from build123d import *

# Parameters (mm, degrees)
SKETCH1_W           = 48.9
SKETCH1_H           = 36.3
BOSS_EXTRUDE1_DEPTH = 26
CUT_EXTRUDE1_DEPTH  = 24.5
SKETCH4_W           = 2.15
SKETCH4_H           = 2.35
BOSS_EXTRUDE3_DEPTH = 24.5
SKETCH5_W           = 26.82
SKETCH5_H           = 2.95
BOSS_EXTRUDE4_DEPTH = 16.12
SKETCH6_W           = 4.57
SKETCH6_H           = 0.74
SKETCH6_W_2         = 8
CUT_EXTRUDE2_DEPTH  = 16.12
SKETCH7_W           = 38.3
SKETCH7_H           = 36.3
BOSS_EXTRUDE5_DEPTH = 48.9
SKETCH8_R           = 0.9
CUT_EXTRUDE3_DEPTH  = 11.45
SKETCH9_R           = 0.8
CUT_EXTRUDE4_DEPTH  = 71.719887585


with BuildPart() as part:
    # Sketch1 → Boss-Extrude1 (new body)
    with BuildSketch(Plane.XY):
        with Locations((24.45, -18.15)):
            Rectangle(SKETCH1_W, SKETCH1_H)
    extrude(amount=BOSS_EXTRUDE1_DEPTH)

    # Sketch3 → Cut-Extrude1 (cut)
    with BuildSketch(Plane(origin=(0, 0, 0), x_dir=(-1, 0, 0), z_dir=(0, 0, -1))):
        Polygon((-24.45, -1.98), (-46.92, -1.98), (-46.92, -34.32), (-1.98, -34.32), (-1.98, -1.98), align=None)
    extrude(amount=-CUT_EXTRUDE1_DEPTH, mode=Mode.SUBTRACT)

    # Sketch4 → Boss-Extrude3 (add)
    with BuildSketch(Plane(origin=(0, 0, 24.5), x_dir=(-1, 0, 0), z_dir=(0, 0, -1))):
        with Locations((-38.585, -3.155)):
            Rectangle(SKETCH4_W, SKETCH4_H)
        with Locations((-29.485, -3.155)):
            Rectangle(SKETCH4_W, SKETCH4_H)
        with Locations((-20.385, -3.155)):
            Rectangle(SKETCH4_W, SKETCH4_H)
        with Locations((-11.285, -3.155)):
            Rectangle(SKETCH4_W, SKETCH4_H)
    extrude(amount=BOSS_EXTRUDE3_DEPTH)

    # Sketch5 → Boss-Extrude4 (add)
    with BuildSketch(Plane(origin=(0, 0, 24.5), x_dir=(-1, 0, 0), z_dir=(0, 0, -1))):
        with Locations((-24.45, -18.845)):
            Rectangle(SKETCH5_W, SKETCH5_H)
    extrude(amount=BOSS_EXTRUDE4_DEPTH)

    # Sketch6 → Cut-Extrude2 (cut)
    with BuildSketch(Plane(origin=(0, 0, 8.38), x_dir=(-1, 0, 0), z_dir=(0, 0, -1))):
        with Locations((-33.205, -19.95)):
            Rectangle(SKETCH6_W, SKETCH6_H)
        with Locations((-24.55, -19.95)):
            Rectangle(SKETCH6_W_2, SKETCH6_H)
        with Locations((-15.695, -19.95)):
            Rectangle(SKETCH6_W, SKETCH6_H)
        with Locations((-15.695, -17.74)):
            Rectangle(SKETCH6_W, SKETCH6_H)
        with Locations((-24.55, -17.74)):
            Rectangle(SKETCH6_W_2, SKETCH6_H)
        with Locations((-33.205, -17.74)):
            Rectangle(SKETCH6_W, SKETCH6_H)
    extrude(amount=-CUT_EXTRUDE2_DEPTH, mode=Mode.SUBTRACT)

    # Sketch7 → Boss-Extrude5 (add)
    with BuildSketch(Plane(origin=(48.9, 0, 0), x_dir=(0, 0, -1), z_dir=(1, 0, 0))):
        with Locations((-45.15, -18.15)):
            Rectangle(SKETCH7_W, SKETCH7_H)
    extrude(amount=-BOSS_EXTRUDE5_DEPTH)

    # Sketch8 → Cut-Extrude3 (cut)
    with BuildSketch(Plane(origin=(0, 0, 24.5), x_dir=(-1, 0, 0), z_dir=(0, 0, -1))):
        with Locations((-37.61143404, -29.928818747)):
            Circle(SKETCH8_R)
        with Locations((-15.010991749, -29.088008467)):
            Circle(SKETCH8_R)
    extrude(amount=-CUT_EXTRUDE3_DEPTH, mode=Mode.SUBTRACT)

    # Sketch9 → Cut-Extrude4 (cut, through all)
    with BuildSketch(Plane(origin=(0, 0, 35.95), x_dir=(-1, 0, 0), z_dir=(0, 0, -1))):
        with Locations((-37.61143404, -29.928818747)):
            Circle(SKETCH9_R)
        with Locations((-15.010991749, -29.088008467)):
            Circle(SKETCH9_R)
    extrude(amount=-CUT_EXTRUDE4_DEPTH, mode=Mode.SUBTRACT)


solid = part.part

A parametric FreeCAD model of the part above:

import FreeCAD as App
import Part
import Sketcher
from FreeCAD import Vector

doc = App.newDocument("Part")
body = doc.addObject("PartDesign::Body", "Body")

sketch1 = doc.addObject("Sketcher::SketchObject", "Sketch")
body.addObject(sketch1)
sketch1.AttachmentSupport = (doc.XY_Plane, [""])
sketch1.MapMode = "FlatFace"
sketch1.addGeometry(Part.LineSegment(Vector(0, 0, 0), Vector(0, -36, 0)), False)
sketch1.addGeometry(Part.LineSegment(Vector(0, -36, 0), Vector(49, -36, 0)), False)
sketch1.addGeometry(Part.LineSegment(Vector(49, -36, 0), Vector(49, 0, 0)), False)
sketch1.addGeometry(Part.LineSegment(Vector(49, 0, 0), Vector(0, 0, 0)), False)
sketch1.addConstraint(Sketcher.Constraint("Coincident", 0, 2, 1, 1))
sketch1.addConstraint(Sketcher.Constraint("Coincident", 1, 2, 2, 1))
sketch1.addConstraint(Sketcher.Constraint("Coincident", 2, 2, 3, 1))
sketch1.addConstraint(Sketcher.Constraint("Coincident", 3, 2, 0, 1))
sketch1.addConstraint(Sketcher.Constraint("Vertical", 0))
sketch1.addConstraint(Sketcher.Constraint("Horizontal", 1))
sketch1.addConstraint(Sketcher.Constraint("Vertical", 2))
sketch1.addConstraint(Sketcher.Constraint("Horizontal", 3))
sketch1.addConstraint(Sketcher.Constraint("Coincident", 3, 2, -1, 1))
sketch1.addConstraint(Sketcher.Constraint("DistanceX", 1, 1, 1, 2, 48.9))
sketch1.addConstraint(Sketcher.Constraint("DistanceY", 0, 2, 0, 1, 36.3))
pad1 = doc.addObject("PartDesign::Pad", "Pad")
body.addObject(pad1)
pad1.Profile = sketch1
pad1.Length = 26

sketch2 = doc.addObject("Sketcher::SketchObject", "Sketch001")
body.addObject(sketch2)
sketch2.AttachmentSupport = (doc.XY_Plane, [""])
sketch2.MapMode = "FlatFace"
sketch2.addGeometry(Part.LineSegment(Vector(47, -2, 0), Vector(47, -34, 0)), False)
sketch2.addGeometry(Part.LineSegment(Vector(47, -34, 0), Vector(2, -34, 0)), False)
sketch2.addGeometry(Part.LineSegment(Vector(2, -34, 0), Vector(2, -2, 0)), False)
sketch2.addGeometry(Part.LineSegment(Vector(2, -2, 0), Vector(47, -2, 0)), False)
sketch2.addConstraint(Sketcher.Constraint("Coincident", 0, 2, 1, 1))
sketch2.addConstraint(Sketcher.Constraint("Coincident", 1, 2, 2, 1))
sketch2.addConstraint(Sketcher.Constraint("Coincident", 2, 2, 3, 1))
sketch2.addConstraint(Sketcher.Constraint("Coincident", 3, 2, 0, 1))
sketch2.addConstraint(Sketcher.Constraint("Vertical", 0))
sketch2.addConstraint(Sketcher.Constraint("Horizontal", 1))
sketch2.addConstraint(Sketcher.Constraint("Vertical", 2))
sketch2.addConstraint(Sketcher.Constraint("Horizontal", 3))
sketch2.addConstraint(Sketcher.Constraint("DistanceX", 1, 2, 1, 1, 44.94))
sketch2.addConstraint(Sketcher.Constraint("DistanceY", 0, 2, 0, 1, 32.34))
sketch2.addConstraint(Sketcher.Constraint("DistanceX", -1, 1, 0, 2, 46.92))
sketch2.addConstraint(Sketcher.Constraint("DistanceY", 0, 2, -1, 1, 34.32))
pocket1 = doc.addObject("PartDesign::Pocket", "Pocket")
body.addObject(pocket1)
pocket1.Profile = sketch2
pocket1.Length = 24.5
pocket1.Reversed = True

sketch3 = doc.addObject("Sketcher::SketchObject", "Sketch002")
body.addObject(sketch3)
sketch3.AttachmentSupport = (doc.XY_Plane, [""])
sketch3.MapMode = "FlatFace"
sketch3.AttachmentOffset = App.Placement(Vector(0, 0, 24.5), App.Rotation())
sketch3.addGeometry(Part.LineSegment(Vector(39.7, -2, 0), Vector(39.7, -4.3, 0)), False)
sketch3.addGeometry(Part.LineSegment(Vector(39.7, -4.3, 0), Vector(37.5, -4.3, 0)), False)
sketch3.addGeometry(Part.LineSegment(Vector(37.5, -4.3, 0), Vector(37.5, -2, 0)), False)
sketch3.addGeometry(Part.LineSegment(Vector(37.5, -2, 0), Vector(39.7, -2, 0)), False)
sketch3.addGeometry(Part.LineSegment(Vector(30.6, -2, 0), Vector(30.6, -4.3, 0)), False)
sketch3.addGeometry(Part.LineSegment(Vector(30.6, -4.3, 0), Vector(28.4, -4.3, 0)), False)
sketch3.addGeometry(Part.LineSegment(Vector(28.4, -4.3, 0), Vector(28.4, -2, 0)), False)
sketch3.addGeometry(Part.LineSegment(Vector(28.4, -2, 0), Vector(30.6, -2, 0)), False)
sketch3.addGeometry(Part.LineSegment(Vector(21.5, -2, 0), Vector(21.5, -4.3, 0)), False)
sketch3.addGeometry(Part.LineSegment(Vector(21.5, -4.3, 0), Vector(19.3, -4.3, 0)), False)
sketch3.addGeometry(Part.LineSegment(Vector(19.3, -4.3, 0), Vector(19.3, -2, 0)), False)
sketch3.addGeometry(Part.LineSegment(Vector(19.3, -2, 0), Vector(21.5, -2, 0)), False)
sketch3.addGeometry(Part.LineSegment(Vector(12.4, -2, 0), Vector(12.4, -4.3, 0)), False)
sketch3.addGeometry(Part.LineSegment(Vector(12.4, -4.3, 0), Vector(10.2, -4.3, 0)), False)
sketch3.addGeometry(Part.LineSegment(Vector(10.2, -4.3, 0), Vector(10.2, -2, 0)), False)
sketch3.addGeometry(Part.LineSegment(Vector(10.2, -2, 0), Vector(12.4, -2, 0)), False)
sketch3.addConstraint(Sketcher.Constraint("Coincident", 0, 2, 1, 1))
sketch3.addConstraint(Sketcher.Constraint("Coincident", 1, 2, 2, 1))
sketch3.addConstraint(Sketcher.Constraint("Coincident", 2, 2, 3, 1))
sketch3.addConstraint(Sketcher.Constraint("Coincident", 3, 2, 0, 1))
sketch3.addConstraint(Sketcher.Constraint("Coincident", 4, 2, 5, 1))
sketch3.addConstraint(Sketcher.Constraint("Coincident", 5, 2, 6, 1))
sketch3.addConstraint(Sketcher.Constraint("Coincident", 6, 2, 7, 1))
sketch3.addConstraint(Sketcher.Constraint("Coincident", 7, 2, 4, 1))
sketch3.addConstraint(Sketcher.Constraint("Coincident", 8, 2, 9, 1))
sketch3.addConstraint(Sketcher.Constraint("Coincident", 9, 2, 10, 1))
sketch3.addConstraint(Sketcher.Constraint("Coincident", 10, 2, 11, 1))
sketch3.addConstraint(Sketcher.Constraint("Coincident", 11, 2, 8, 1))
sketch3.addConstraint(Sketcher.Constraint("Coincident", 12, 2, 13, 1))
sketch3.addConstraint(Sketcher.Constraint("Coincident", 13, 2, 14, 1))
sketch3.addConstraint(Sketcher.Constraint("Coincident", 14, 2, 15, 1))
sketch3.addConstraint(Sketcher.Constraint("Coincident", 15, 2, 12, 1))
sketch3.addConstraint(Sketcher.Constraint("Vertical", 0))
sketch3.addConstraint(Sketcher.Constraint("Horizontal", 1))
sketch3.addConstraint(Sketcher.Constraint("Vertical", 2))
sketch3.addConstraint(Sketcher.Constraint("Horizontal", 3))
sketch3.addConstraint(Sketcher.Constraint("Vertical", 4))
sketch3.addConstraint(Sketcher.Constraint("Horizontal", 5))
sketch3.addConstraint(Sketcher.Constraint("Vertical", 6))
sketch3.addConstraint(Sketcher.Constraint("Horizontal", 7))
sketch3.addConstraint(Sketcher.Constraint("Vertical", 8))
sketch3.addConstraint(Sketcher.Constraint("Horizontal", 9))
sketch3.addConstraint(Sketcher.Constraint("Vertical", 10))
sketch3.addConstraint(Sketcher.Constraint("Horizontal", 11))
sketch3.addConstraint(Sketcher.Constraint("Vertical", 12))
sketch3.addConstraint(Sketcher.Constraint("Horizontal", 13))
sketch3.addConstraint(Sketcher.Constraint("Vertical", 14))
sketch3.addConstraint(Sketcher.Constraint("Horizontal", 15))
sketch3.addConstraint(Sketcher.Constraint("Horizontal", 1, 2, 4, 2))
sketch3.addConstraint(Sketcher.Constraint("Horizontal", 3, 2, 6, 2))
sketch3.addConstraint(Sketcher.Constraint("Horizontal", 5, 2, 8, 2))
sketch3.addConstraint(Sketcher.Constraint("Horizontal", 7, 2, 10, 2))
sketch3.addConstraint(Sketcher.Constraint("Horizontal", 9, 2, 12, 2))
sketch3.addConstraint(Sketcher.Constraint("Horizontal", 11, 2, 14, 2))
sketch3.addConstraint(Sketcher.Constraint("Equal", 3, 5))
sketch3.addConstraint(Sketcher.Constraint("Equal", 7, 9))
sketch3.addConstraint(Sketcher.Constraint("Equal", 11, 13))
sketch3.addConstraint(Sketcher.Constraint("DistanceX", 1, 2, 1, 1, 2.15))
sketch3.addConstraint(Sketcher.Constraint("DistanceY", 0, 2, 0, 1, 2.35))
sketch3.addConstraint(Sketcher.Constraint("DistanceX", 4, 2, 0, 2, 9.1))
sketch3.addConstraint(Sketcher.Constraint("DistanceX", 8, 2, 4, 2, 9.1))
sketch3.addConstraint(Sketcher.Constraint("DistanceX", 12, 2, 8, 2, 9.1))
sketch3.addConstraint(Sketcher.Constraint("DistanceX", -1, 1, 0, 2, 39.66))
sketch3.addConstraint(Sketcher.Constraint("DistanceY", 0, 2, -1, 1, 4.33))
pad2 = doc.addObject("PartDesign::Pad", "Pad001")
body.addObject(pad2)
pad2.Profile = sketch3
pad2.Length = 24.5
pad2.Reversed = True

sketch4 = doc.addObject("Sketcher::SketchObject", "Sketch003")
body.addObject(sketch4)
sketch4.AttachmentSupport = (doc.XY_Plane, [""])
sketch4.MapMode = "FlatFace"
sketch4.AttachmentOffset = App.Placement(Vector(0, 0, 24.5), App.Rotation())
sketch4.addGeometry(Part.LineSegment(Vector(37.9, -17.4, 0), Vector(37.9, -20.3, 0)), False)
sketch4.addGeometry(Part.LineSegment(Vector(37.9, -20.3, 0), Vector(11, -20.3, 0)), False)
sketch4.addGeometry(Part.LineSegment(Vector(11, -20.3, 0), Vector(11, -17.4, 0)), False)
sketch4.addGeometry(Part.LineSegment(Vector(11, -17.4, 0), Vector(37.9, -17.4, 0)), False)
sketch4.addConstraint(Sketcher.Constraint("Coincident", 0, 2, 1, 1))
sketch4.addConstraint(Sketcher.Constraint("Coincident", 1, 2, 2, 1))
sketch4.addConstraint(Sketcher.Constraint("Coincident", 2, 2, 3, 1))
sketch4.addConstraint(Sketcher.Constraint("Coincident", 3, 2, 0, 1))
sketch4.addConstraint(Sketcher.Constraint("Vertical", 0))
sketch4.addConstraint(Sketcher.Constraint("Horizontal", 1))
sketch4.addConstraint(Sketcher.Constraint("Vertical", 2))
sketch4.addConstraint(Sketcher.Constraint("Horizontal", 3))
sketch4.addConstraint(Sketcher.Constraint("DistanceX", 1, 2, 1, 1, 26.82))
sketch4.addConstraint(Sketcher.Constraint("DistanceY", 0, 2, 0, 1, 2.95))
sketch4.addConstraint(Sketcher.Constraint("DistanceX", -1, 1, 0, 2, 37.86))
sketch4.addConstraint(Sketcher.Constraint("DistanceY", 0, 2, -1, 1, 20.32))
pad3 = doc.addObject("PartDesign::Pad", "Pad002")
body.addObject(pad3)
pad3.Profile = sketch4
pad3.Length = 16.12
pad3.Reversed = True

sketch5 = doc.addObject("Sketcher::SketchObject", "Sketch004")
body.addObject(sketch5)
sketch5.AttachmentSupport = (doc.XY_Plane, [""])
sketch5.MapMode = "FlatFace"
sketch5.AttachmentOffset = App.Placement(Vector(0, 0, 8.38), App.Rotation())
sketch5.addGeometry(Part.LineSegment(Vector(35.5, -19.6, 0), Vector(35.5, -20.3, 0)), False)
sketch5.addGeometry(Part.LineSegment(Vector(35.5, -20.3, 0), Vector(30.9, -20.3, 0)), False)
sketch5.addGeometry(Part.LineSegment(Vector(30.9, -20.3, 0), Vector(30.9, -19.6, 0)), False)
sketch5.addGeometry(Part.LineSegment(Vector(30.9, -19.6, 0), Vector(35.5, -19.6, 0)), False)
sketch5.addGeometry(Part.LineSegment(Vector(28.6, -19.6, 0), Vector(28.6, -20.3, 0)), False)
sketch5.addGeometry(Part.LineSegment(Vector(28.6, -20.3, 0), Vector(20.6, -20.3, 0)), False)
sketch5.addGeometry(Part.LineSegment(Vector(20.6, -20.3, 0), Vector(20.6, -19.6, 0)), False)
sketch5.addGeometry(Part.LineSegment(Vector(20.6, -19.6, 0), Vector(28.6, -19.6, 0)), False)
sketch5.addGeometry(Part.LineSegment(Vector(18, -19.6, 0), Vector(18, -20.3, 0)), False)
sketch5.addGeometry(Part.LineSegment(Vector(18, -20.3, 0), Vector(13.4, -20.3, 0)), False)
sketch5.addGeometry(Part.LineSegment(Vector(13.4, -20.3, 0), Vector(13.4, -19.6, 0)), False)
sketch5.addGeometry(Part.LineSegment(Vector(13.4, -19.6, 0), Vector(18, -19.6, 0)), False)
sketch5.addGeometry(Part.LineSegment(Vector(18, -17.4, 0), Vector(18, -18.1, 0)), False)
sketch5.addGeometry(Part.LineSegment(Vector(18, -18.1, 0), Vector(13.4, -18.1, 0)), False)
sketch5.addGeometry(Part.LineSegment(Vector(13.4, -18.1, 0), Vector(13.4, -17.4, 0)), False)
sketch5.addGeometry(Part.LineSegment(Vector(13.4, -17.4, 0), Vector(18, -17.4, 0)), False)
sketch5.addGeometry(Part.LineSegment(Vector(28.6, -17.4, 0), Vector(28.6, -18.1, 0)), False)
sketch5.addGeometry(Part.LineSegment(Vector(28.6, -18.1, 0), Vector(20.6, -18.1, 0)), False)
sketch5.addGeometry(Part.LineSegment(Vector(20.6, -18.1, 0), Vector(20.6, -17.4, 0)), False)
sketch5.addGeometry(Part.LineSegment(Vector(20.6, -17.4, 0), Vector(28.6, -17.4, 0)), False)
sketch5.addGeometry(Part.LineSegment(Vector(35.5, -17.4, 0), Vector(35.5, -18.1, 0)), False)
sketch5.addGeometry(Part.LineSegment(Vector(35.5, -18.1, 0), Vector(30.9, -18.1, 0)), False)
sketch5.addGeometry(Part.LineSegment(Vector(30.9, -18.1, 0), Vector(30.9, -17.4, 0)), False)
sketch5.addGeometry(Part.LineSegment(Vector(30.9, -17.4, 0), Vector(35.5, -17.4, 0)), False)
sketch5.addConstraint(Sketcher.Constraint("Coincident", 0, 2, 1, 1))
sketch5.addConstraint(Sketcher.Constraint("Coincident", 1, 2, 2, 1))
sketch5.addConstraint(Sketcher.Constraint("Coincident", 2, 2, 3, 1))
sketch5.addConstraint(Sketcher.Constraint("Coincident", 3, 2, 0, 1))
sketch5.addConstraint(Sketcher.Constraint("Coincident", 4, 2, 5, 1))
sketch5.addConstraint(Sketcher.Constraint("Coincident", 5, 2, 6, 1))
sketch5.addConstraint(Sketcher.Constraint("Coincident", 6, 2, 7, 1))
sketch5.addConstraint(Sketcher.Constraint("Coincident", 7, 2, 4, 1))
sketch5.addConstraint(Sketcher.Constraint("Coincident", 8, 2, 9, 1))
sketch5.addConstraint(Sketcher.Constraint("Coincident", 9, 2, 10, 1))
sketch5.addConstraint(Sketcher.Constraint("Coincident", 10, 2, 11, 1))
sketch5.addConstraint(Sketcher.Constraint("Coincident", 11, 2, 8, 1))
sketch5.addConstraint(Sketcher.Constraint("Coincident", 12, 2, 13, 1))
sketch5.addConstraint(Sketcher.Constraint("Coincident", 13, 2, 14, 1))
sketch5.addConstraint(Sketcher.Constraint("Coincident", 14, 2, 15, 1))
sketch5.addConstraint(Sketcher.Constraint("Coincident", 15, 2, 12, 1))
sketch5.addConstraint(Sketcher.Constraint("Coincident", 16, 2, 17, 1))
sketch5.addConstraint(Sketcher.Constraint("Coincident", 17, 2, 18, 1))
sketch5.addConstraint(Sketcher.Constraint("Coincident", 18, 2, 19, 1))
sketch5.addConstraint(Sketcher.Constraint("Coincident", 19, 2, 16, 1))
sketch5.addConstraint(Sketcher.Constraint("Coincident", 20, 2, 21, 1))
sketch5.addConstraint(Sketcher.Constraint("Coincident", 21, 2, 22, 1))
sketch5.addConstraint(Sketcher.Constraint("Coincident", 22, 2, 23, 1))
sketch5.addConstraint(Sketcher.Constraint("Coincident", 23, 2, 20, 1))
sketch5.addConstraint(Sketcher.Constraint("Vertical", 0))
sketch5.addConstraint(Sketcher.Constraint("Horizontal", 1))
sketch5.addConstraint(Sketcher.Constraint("Vertical", 2))
sketch5.addConstraint(Sketcher.Constraint("Horizontal", 3))
sketch5.addConstraint(Sketcher.Constraint("Vertical", 4))
sketch5.addConstraint(Sketcher.Constraint("Horizontal", 5))
sketch5.addConstraint(Sketcher.Constraint("Vertical", 6))
sketch5.addConstraint(Sketcher.Constraint("Horizontal", 7))
sketch5.addConstraint(Sketcher.Constraint("Vertical", 8))
sketch5.addConstraint(Sketcher.Constraint("Horizontal", 9))
sketch5.addConstraint(Sketcher.Constraint("Vertical", 10))
sketch5.addConstraint(Sketcher.Constraint("Horizontal", 11))
sketch5.addConstraint(Sketcher.Constraint("Vertical", 12))
sketch5.addConstraint(Sketcher.Constraint("Horizontal", 13))
sketch5.addConstraint(Sketcher.Constraint("Vertical", 14))
sketch5.addConstraint(Sketcher.Constraint("Horizontal", 15))
sketch5.addConstraint(Sketcher.Constraint("Vertical", 16))
sketch5.addConstraint(Sketcher.Constraint("Horizontal", 17))
sketch5.addConstraint(Sketcher.Constraint("Vertical", 18))
sketch5.addConstraint(Sketcher.Constraint("Horizontal", 19))
sketch5.addConstraint(Sketcher.Constraint("Vertical", 20))
sketch5.addConstraint(Sketcher.Constraint("Horizontal", 21))
sketch5.addConstraint(Sketcher.Constraint("Vertical", 22))
sketch5.addConstraint(Sketcher.Constraint("Horizontal", 23))
sketch5.addConstraint(Sketcher.Constraint("Horizontal", 1, 2, 4, 2))
sketch5.addConstraint(Sketcher.Constraint("Horizontal", 3, 2, 6, 2))
sketch5.addConstraint(Sketcher.Constraint("Horizontal", 5, 2, 8, 2))
sketch5.addConstraint(Sketcher.Constraint("Horizontal", 7, 2, 10, 2))
sketch5.addConstraint(Sketcher.Constraint("Horizontal", 13, 2, 16, 2))
sketch5.addConstraint(Sketcher.Constraint("Horizontal", 15, 2, 18, 2))
sketch5.addConstraint(Sketcher.Constraint("Horizontal", 17, 2, 20, 2))
sketch5.addConstraint(Sketcher.Constraint("Horizontal", 19, 2, 22, 2))
sketch5.addConstraint(Sketcher.Constraint("Vertical", 11, 2, 12, 2))
sketch5.addConstraint(Sketcher.Constraint("Vertical", 10, 2, 13, 2))
sketch5.addConstraint(Sketcher.Constraint("Vertical", 7, 2, 16, 2))
sketch5.addConstraint(Sketcher.Constraint("Vertical", 6, 2, 17, 2))
sketch5.addConstraint(Sketcher.Constraint("Vertical", 3, 2, 20, 2))
sketch5.addConstraint(Sketcher.Constraint("Vertical", 2, 2, 21, 2))
sketch5.addConstraint(Sketcher.Constraint("Equal", 3, 9))
sketch5.addConstraint(Sketcher.Constraint("Equal", 10, 12))
sketch5.addConstraint(Sketcher.Constraint("DistanceX", 5, 2, 5, 1, 8.0))
sketch5.addConstraint(Sketcher.Constraint("DistanceX", 1, 2, 1, 1, 4.57))
sketch5.addConstraint(Sketcher.Constraint("DistanceY", 0, 2, 0, 1, 0.74))
sketch5.addConstraint(Sketcher.Constraint("DistanceX", -1, 1, 0, 2, 35.49))
sketch5.addConstraint(Sketcher.Constraint("DistanceY", 0, 2, -1, 1, 20.32))
sketch5.addConstraint(Sketcher.Constraint("DistanceX", -1, 1, 4, 2, 28.55))
sketch5.addConstraint(Sketcher.Constraint("DistanceX", -1, 1, 8, 2, 17.98))
sketch5.addConstraint(Sketcher.Constraint("DistanceY", 12, 2, -1, 1, 18.11))
pocket2 = doc.addObject("PartDesign::Pocket", "Pocket001")
body.addObject(pocket2)
pocket2.Profile = sketch5
pocket2.Length = 16.12
pocket2.Reversed = True

sketch6 = doc.addObject("Sketcher::SketchObject", "Sketch005")
body.addObject(sketch6)
sketch6.AttachmentSupport = (doc.YZ_Plane, [""])
sketch6.MapMode = "FlatFace"
sketch6.AttachmentOffset = App.Placement(Vector(0, 0, 48.9), App.Rotation())
sketch6.addGeometry(Part.LineSegment(Vector(0, 64, 0), Vector(-36, 64, 0)), False)
sketch6.addGeometry(Part.LineSegment(Vector(-36, 64, 0), Vector(-36, 26, 0)), False)
sketch6.addGeometry(Part.LineSegment(Vector(-36, 26, 0), Vector(0, 26, 0)), False)
sketch6.addGeometry(Part.LineSegment(Vector(0, 26, 0), Vector(0, 64, 0)), False)
sketch6.addConstraint(Sketcher.Constraint("Coincident", 0, 2, 1, 1))
sketch6.addConstraint(Sketcher.Constraint("Coincident", 1, 2, 2, 1))
sketch6.addConstraint(Sketcher.Constraint("Coincident", 2, 2, 3, 1))
sketch6.addConstraint(Sketcher.Constraint("Coincident", 3, 2, 0, 1))
sketch6.addConstraint(Sketcher.Constraint("Horizontal", 0))
sketch6.addConstraint(Sketcher.Constraint("Vertical", 1))
sketch6.addConstraint(Sketcher.Constraint("Horizontal", 2))
sketch6.addConstraint(Sketcher.Constraint("Vertical", 3))
sketch6.addConstraint(Sketcher.Constraint("PointOnObject", 2, 2, -2))
sketch6.addConstraint(Sketcher.Constraint("DistanceX", 0, 2, 0, 1, 36.3))
sketch6.addConstraint(Sketcher.Constraint("DistanceY", 1, 2, 1, 1, 38.3))
sketch6.addConstraint(Sketcher.Constraint("DistanceY", -1, 1, 1, 2, 26.0))
pad4 = doc.addObject("PartDesign::Pad", "Pad003")
body.addObject(pad4)
pad4.Profile = sketch6
pad4.Length = 48.9
pad4.Reversed = True

sketch7 = doc.addObject("Sketcher::SketchObject", "Sketch006")
body.addObject(sketch7)
sketch7.AttachmentSupport = (doc.XY_Plane, [""])
sketch7.MapMode = "FlatFace"
sketch7.AttachmentOffset = App.Placement(Vector(0, 0, 24.5), App.Rotation())
sketch7.addGeometry(Part.Circle(Vector(37.6, -29.9, 0), Vector(0, 0, 1), 0.9), False)
sketch7.addGeometry(Part.Circle(Vector(15, -29.1, 0), Vector(0, 0, 1), 0.9), False)
sketch7.addConstraint(Sketcher.Constraint("Equal", 0, 1))
sketch7.addConstraint(Sketcher.Constraint("Diameter", 0, 1.8))
sketch7.addConstraint(Sketcher.Constraint("DistanceY", 0, 3, -1, 1, 29.928819))
sketch7.addConstraint(Sketcher.Constraint("DistanceX", -1, 1, 1, 3, 15.010992))
sketch7.addConstraint(Sketcher.Constraint("DistanceY", 1, 3, -1, 1, 29.088008))
sketch7.addConstraint(Sketcher.Constraint("DistanceX", -1, 1, 0, 3, 37.611434))
pocket3 = doc.addObject("PartDesign::Pocket", "Pocket002")
body.addObject(pocket3)
pocket3.Profile = sketch7
pocket3.Length = 11.45
pocket3.Reversed = True

sketch8 = doc.addObject("Sketcher::SketchObject", "Sketch007")
body.addObject(sketch8)
sketch8.AttachmentSupport = (doc.XY_Plane, [""])
sketch8.MapMode = "FlatFace"
sketch8.AttachmentOffset = App.Placement(Vector(0, 0, 35.95), App.Rotation())
sketch8.addGeometry(Part.Circle(Vector(37.6, -29.9, 0), Vector(0, 0, 1), 0.8), False)
sketch8.addGeometry(Part.Circle(Vector(15, -29.1, 0), Vector(0, 0, 1), 0.8), False)
sketch8.addConstraint(Sketcher.Constraint("Equal", 0, 1))
sketch8.addConstraint(Sketcher.Constraint("Diameter", 0, 1.6))
sketch8.addConstraint(Sketcher.Constraint("DistanceY", 0, 3, -1, 1, 29.928819))
sketch8.addConstraint(Sketcher.Constraint("DistanceX", -1, 1, 1, 3, 15.010992))
sketch8.addConstraint(Sketcher.Constraint("DistanceY", 1, 3, -1, 1, 29.088008))
sketch8.addConstraint(Sketcher.Constraint("DistanceX", -1, 1, 0, 3, 37.611434))
pocket4 = doc.addObject("PartDesign::Pocket", "Pocket003")
body.addObject(pocket4)
pocket4.Profile = sketch8
pocket4.Type = "ThroughAll"
pocket4.Reversed = True

doc.recompute()
